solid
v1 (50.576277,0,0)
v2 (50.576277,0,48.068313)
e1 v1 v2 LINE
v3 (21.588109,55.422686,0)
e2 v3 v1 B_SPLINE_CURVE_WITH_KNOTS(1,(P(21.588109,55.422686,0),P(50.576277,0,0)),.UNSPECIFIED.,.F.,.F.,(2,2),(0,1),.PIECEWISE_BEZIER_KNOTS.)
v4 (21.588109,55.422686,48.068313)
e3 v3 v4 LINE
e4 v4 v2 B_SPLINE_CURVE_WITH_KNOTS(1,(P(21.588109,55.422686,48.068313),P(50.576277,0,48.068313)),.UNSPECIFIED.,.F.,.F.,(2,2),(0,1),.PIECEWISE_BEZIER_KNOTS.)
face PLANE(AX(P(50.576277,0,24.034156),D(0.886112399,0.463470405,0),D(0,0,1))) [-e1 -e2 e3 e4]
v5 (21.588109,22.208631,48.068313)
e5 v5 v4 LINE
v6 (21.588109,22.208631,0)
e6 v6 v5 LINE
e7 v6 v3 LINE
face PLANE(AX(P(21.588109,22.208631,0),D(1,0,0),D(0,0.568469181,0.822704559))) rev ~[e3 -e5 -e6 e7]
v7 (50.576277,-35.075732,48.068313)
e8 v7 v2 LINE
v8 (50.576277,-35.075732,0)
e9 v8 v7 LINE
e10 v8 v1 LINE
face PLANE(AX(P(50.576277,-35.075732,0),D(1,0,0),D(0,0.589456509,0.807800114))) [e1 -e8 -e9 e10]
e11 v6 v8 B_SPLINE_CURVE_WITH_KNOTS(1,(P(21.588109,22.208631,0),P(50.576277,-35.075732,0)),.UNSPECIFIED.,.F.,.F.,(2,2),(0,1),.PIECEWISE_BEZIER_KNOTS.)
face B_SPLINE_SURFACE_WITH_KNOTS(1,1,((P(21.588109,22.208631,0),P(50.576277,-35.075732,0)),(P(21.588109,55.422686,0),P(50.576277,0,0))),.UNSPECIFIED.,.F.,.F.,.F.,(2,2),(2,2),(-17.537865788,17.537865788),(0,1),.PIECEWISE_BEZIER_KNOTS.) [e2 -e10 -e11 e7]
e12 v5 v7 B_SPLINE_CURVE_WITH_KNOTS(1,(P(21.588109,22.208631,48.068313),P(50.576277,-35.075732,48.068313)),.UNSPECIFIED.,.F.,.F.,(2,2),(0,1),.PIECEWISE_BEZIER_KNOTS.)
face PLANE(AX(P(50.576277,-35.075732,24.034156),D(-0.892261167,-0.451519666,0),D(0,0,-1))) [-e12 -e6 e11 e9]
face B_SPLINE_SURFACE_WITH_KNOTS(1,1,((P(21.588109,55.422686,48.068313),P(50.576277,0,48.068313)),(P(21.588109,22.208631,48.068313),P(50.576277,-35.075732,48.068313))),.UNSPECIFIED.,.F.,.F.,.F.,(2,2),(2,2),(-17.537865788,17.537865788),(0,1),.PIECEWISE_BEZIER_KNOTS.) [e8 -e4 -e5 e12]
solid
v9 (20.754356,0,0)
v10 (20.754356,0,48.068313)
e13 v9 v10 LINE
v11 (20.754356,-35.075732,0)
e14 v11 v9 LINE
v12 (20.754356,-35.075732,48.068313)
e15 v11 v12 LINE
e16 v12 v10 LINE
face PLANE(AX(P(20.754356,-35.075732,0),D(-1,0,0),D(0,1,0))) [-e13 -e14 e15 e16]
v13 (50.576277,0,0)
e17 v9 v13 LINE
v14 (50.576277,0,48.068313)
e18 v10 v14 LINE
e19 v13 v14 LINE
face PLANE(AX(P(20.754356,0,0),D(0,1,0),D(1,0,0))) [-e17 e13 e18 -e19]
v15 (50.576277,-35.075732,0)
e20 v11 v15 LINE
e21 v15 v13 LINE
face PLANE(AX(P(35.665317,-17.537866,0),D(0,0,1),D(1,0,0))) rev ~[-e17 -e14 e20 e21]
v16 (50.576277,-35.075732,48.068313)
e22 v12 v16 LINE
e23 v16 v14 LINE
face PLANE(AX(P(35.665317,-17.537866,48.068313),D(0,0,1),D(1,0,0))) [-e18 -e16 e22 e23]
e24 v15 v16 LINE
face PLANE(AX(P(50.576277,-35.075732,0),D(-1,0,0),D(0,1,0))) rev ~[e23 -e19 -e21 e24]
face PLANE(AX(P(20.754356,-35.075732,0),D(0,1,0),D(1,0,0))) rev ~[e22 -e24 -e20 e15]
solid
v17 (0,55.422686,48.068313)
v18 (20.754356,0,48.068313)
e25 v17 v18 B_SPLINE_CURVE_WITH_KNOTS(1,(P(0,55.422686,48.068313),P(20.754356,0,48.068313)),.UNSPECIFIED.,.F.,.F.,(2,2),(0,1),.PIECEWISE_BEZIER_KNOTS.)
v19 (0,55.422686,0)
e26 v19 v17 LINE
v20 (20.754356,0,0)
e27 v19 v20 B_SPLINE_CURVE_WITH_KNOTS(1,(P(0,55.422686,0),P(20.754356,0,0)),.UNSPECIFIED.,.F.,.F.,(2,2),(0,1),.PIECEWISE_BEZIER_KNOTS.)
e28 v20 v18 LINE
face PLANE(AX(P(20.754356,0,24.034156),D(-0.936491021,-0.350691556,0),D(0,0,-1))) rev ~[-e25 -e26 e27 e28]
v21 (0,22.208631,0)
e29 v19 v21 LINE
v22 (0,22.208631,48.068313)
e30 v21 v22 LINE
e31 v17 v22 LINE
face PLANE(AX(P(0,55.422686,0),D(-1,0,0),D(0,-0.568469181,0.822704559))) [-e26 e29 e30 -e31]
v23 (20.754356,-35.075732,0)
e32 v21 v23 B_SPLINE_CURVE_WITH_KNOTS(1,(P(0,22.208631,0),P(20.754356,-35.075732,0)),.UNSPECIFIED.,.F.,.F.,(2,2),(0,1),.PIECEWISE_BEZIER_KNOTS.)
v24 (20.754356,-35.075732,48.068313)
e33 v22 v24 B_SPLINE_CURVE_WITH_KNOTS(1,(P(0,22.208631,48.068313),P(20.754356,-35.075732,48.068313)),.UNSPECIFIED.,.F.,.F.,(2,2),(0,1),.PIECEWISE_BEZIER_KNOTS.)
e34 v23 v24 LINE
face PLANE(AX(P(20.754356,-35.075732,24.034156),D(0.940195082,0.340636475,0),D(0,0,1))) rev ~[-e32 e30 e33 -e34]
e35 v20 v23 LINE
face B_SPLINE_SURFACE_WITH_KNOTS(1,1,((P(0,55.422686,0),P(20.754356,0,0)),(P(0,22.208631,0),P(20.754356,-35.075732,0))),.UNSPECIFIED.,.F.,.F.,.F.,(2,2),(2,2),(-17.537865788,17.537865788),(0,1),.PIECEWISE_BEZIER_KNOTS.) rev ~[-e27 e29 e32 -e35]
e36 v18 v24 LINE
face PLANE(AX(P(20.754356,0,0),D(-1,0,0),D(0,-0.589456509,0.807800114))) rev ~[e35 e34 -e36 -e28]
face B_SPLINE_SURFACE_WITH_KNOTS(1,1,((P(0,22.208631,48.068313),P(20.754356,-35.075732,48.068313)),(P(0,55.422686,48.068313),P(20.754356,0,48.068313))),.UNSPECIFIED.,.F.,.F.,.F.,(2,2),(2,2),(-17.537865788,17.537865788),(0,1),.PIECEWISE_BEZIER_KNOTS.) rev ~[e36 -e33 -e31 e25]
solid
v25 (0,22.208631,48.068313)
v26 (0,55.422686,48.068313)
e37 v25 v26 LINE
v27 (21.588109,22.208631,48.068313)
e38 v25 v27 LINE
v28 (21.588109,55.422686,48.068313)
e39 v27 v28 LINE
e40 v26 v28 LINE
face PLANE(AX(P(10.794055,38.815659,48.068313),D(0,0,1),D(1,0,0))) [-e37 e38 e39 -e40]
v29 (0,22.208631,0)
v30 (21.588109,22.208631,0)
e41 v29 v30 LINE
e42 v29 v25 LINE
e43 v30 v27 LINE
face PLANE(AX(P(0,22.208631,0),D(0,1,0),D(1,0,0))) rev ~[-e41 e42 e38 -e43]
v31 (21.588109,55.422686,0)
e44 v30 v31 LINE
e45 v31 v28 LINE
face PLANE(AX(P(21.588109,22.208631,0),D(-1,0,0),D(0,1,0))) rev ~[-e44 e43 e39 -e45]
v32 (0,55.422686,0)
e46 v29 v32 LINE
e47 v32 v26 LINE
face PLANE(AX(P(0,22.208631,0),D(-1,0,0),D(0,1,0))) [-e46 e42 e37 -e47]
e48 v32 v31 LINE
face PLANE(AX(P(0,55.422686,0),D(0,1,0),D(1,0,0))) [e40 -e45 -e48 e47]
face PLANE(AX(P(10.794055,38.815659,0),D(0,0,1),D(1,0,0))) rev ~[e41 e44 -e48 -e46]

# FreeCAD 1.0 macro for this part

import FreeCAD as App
import Part
import Sketcher
from FreeCAD import Vector
Q = App.Units.Quantity

doc = App.newDocument("Part")
body = doc.addObject("PartDesign::Body", "Body")

# Sketch on XY plane
sketch1 = body.newObject("Sketcher::SketchObject", "Sketch")
sketch1.AttachmentSupport = (doc.getObject("XY_Plane"), [""])
sketch1.MapMode = "FlatFace"
sketch1.addGeometry(Part.LineSegment(Vector(20.754356, 0, 0), Vector(20.754356, -35.075732, 0)), False)
sketch1.addGeometry(Part.LineSegment(Vector(20.754356, -35.075732, 0), Vector(50.576277, -35.075732, 0)), False)
sketch1.addGeometry(Part.LineSegment(Vector(50.576277, -35.075732, 0), Vector(50.576277, 0, 0)), False)
sketch1.addGeometry(Part.LineSegment(Vector(50.576277, 0, 0), Vector(20.754356, 0, 0)), False)
sketch1.addConstraint(Sketcher.Constraint("Coincident", 0, 2, 1, 1))
sketch1.addConstraint(Sketcher.Constraint("Coincident", 1, 2, 2, 1))
sketch1.addConstraint(Sketcher.Constraint("Coincident", 2, 2, 3, 1))
sketch1.addConstraint(Sketcher.Constraint("Coincident", 3, 2, 0, 1))
sketch1.addConstraint(Sketcher.Constraint("Vertical", 0))
sketch1.addConstraint(Sketcher.Constraint("Horizontal", 1))
sketch1.addConstraint(Sketcher.Constraint("Vertical", 2))
sketch1.addConstraint(Sketcher.Constraint("Horizontal", 3))
sketch1.addConstraint(Sketcher.Constraint("PointOnObject", 2, 2, -1))
sketch1.addConstraint(Sketcher.Constraint("DistanceX", 1, 1, 1, 2, Q("29.821921 mm")))
sketch1.addConstraint(Sketcher.Constraint("DistanceY", 0, 2, 0, 1, Q("35.075732 mm")))
sketch1.addConstraint(Sketcher.Constraint("DistanceX", -1, 1, 0, 2, Q("20.754356 mm")))
pad1 = body.newObject("PartDesign::Pad", "Pad")
pad1.Profile = sketch1
pad1.Length = 48.068313
body2 = doc.addObject("PartDesign::Body", "Body001")

# Sketch on XY plane
sketch2 = body2.newObject("Sketcher::SketchObject", "Sketch001")
sketch2.AttachmentSupport = (doc.getObject("XY_Plane001"), [""])
sketch2.MapMode = "FlatFace"
sketch2.addGeometry(Part.LineSegment(Vector(0, 55.422686, 0), Vector(0, 22.208631, 0)), False)
sketch2.addGeometry(Part.LineSegment(Vector(0, 22.208631, 0), Vector(21.588109, 22.208631, 0)), False)
sketch2.addGeometry(Part.LineSegment(Vector(21.588109, 22.208631, 0), Vector(21.588109, 55.422686, 0)), False)
sketch2.addGeometry(Part.LineSegment(Vector(21.588109, 55.422686, 0), Vector(0, 55.422686, 0)), False)
sketch2.addConstraint(Sketcher.Constraint("Coincident", 0, 2, 1, 1))
sketch2.addConstraint(Sketcher.Constraint("Coincident", 1, 2, 2, 1))
sketch2.addConstraint(Sketcher.Constraint("Coincident", 2, 2, 3, 1))
sketch2.addConstraint(Sketcher.Constraint("Coincident", 3, 2, 0, 1))
sketch2.addConstraint(Sketcher.Constraint("Vertical", 0))
sketch2.addConstraint(Sketcher.Constraint("Horizontal", 1))
sketch2.addConstraint(Sketcher.Constraint("Vertical", 2))
sketch2.addConstraint(Sketcher.Constraint("Horizontal", 3))
sketch2.addConstraint(Sketcher.Constraint("PointOnObject", 0, 2, -2))
sketch2.addConstraint(Sketcher.Constraint("DistanceX", 1, 1, 1, 2, Q("21.588109 mm")))
sketch2.addConstraint(Sketcher.Constraint("DistanceY", 0, 2, 0, 1, Q("33.214055 mm")))
sketch2.addConstraint(Sketcher.Constraint("DistanceY", -1, 1, 0, 2, Q("22.208631 mm")))
pad2 = body2.newObject("PartDesign::Pad", "Pad001")
pad2.Profile = sketch2
pad2.Length = 48.068313
body3 = doc.addObject("PartDesign::Body", "Body002")

# Sketch on YZ plane
sketch3 = body3.newObject("Sketcher::SketchObject", "Sketch002")
sketch3.AttachmentSupport = (doc.getObject("YZ_Plane002"), [""])
sketch3.MapMode = "FlatFace"
sketch3.AttachmentOffset = App.Placement(Vector(0, 0, 21.588109), App.Rotation())
sketch3.addGeometry(Part.LineSegment(Vector(22.208631, 48.068313, 0), Vector(22.208631, 0, 0)), False)
sketch3.addGeometry(Part.LineSegment(Vector(22.208631, 0, 0), Vector(55.422686, 0, 0)), False)
sketch3.addGeometry(Part.LineSegment(Vector(55.422686, 0, 0), Vector(55.422686, 48.068313, 0)), False)
sketch3.addGeometry(Part.LineSegment(Vector(55.422686, 48.068313, 0), Vector(22.208631, 48.068313, 0)), False)
sketch3.addConstraint(Sketcher.Constraint("Coincident", 0, 2, 1, 1))
sketch3.addConstraint(Sketcher.Constraint("Coincident", 1, 2, 2, 1))
sketch3.addConstraint(Sketcher.Constraint("Coincident", 2, 2, 3, 1))
sketch3.addConstraint(Sketcher.Constraint("Coincident", 3, 2, 0, 1))
sketch3.addConstraint(Sketcher.Constraint("Vertical", 0))
sketch3.addConstraint(Sketcher.Constraint("Horizontal", 1))
sketch3.addConstraint(Sketcher.Constraint("Vertical", 2))
sketch3.addConstraint(Sketcher.Constraint("Horizontal", 3))
sketch3.addConstraint(Sketcher.Constraint("PointOnObject", 0, 2, -1))
sketch3.addConstraint(Sketcher.Constraint("DistanceX", 1, 1, 1, 2, Q("33.214055 mm")))
sketch3.addConstraint(Sketcher.Constraint("DistanceY", 0, 2, 0, 1, Q("48.068313 mm")))
sketch3.addConstraint(Sketcher.Constraint("DistanceX", -1, 1, 0, 2, Q("22.208631 mm")))

# Sketch on YZ plane
sketch4 = body3.newObject("Sketcher::SketchObject", "Sketch003")
sketch4.AttachmentSupport = (doc.getObject("YZ_Plane002"), [""])
sketch4.MapMode = "FlatFace"
sketch4.AttachmentOffset = App.Placement(Vector(0, 0, 50.576277), App.Rotation())
sketch4.addGeometry(Part.LineSegment(Vector(-35.075732, 48.068313, 0), Vector(-35.075732, 0, 0)), False)
sketch4.addGeometry(Part.LineSegment(Vector(-35.075732, 0, 0), Vector(0, 0, 0)), False)
sketch4.addGeometry(Part.LineSegment(Vector(0, 0, 0), Vector(0, 48.068313, 0)), False)
sketch4.addGeometry(Part.LineSegment(Vector(0, 48.068313, 0), Vector(-35.075732, 48.068313, 0)), False)
sketch4.addConstraint(Sketcher.Constraint("Coincident", 0, 2, 1, 1))
sketch4.addConstraint(Sketcher.Constraint("Coincident", 1, 2, 2, 1))
sketch4.addConstraint(Sketcher.Constraint("Coincident", 2, 2, 3, 1))
sketch4.addConstraint(Sketcher.Constraint("Coincident", 3, 2, 0, 1))
sketch4.addConstraint(Sketcher.Constraint("Vertical", 0))
sketch4.addConstraint(Sketcher.Constraint("Horizontal", 1))
sketch4.addConstraint(Sketcher.Constraint("Vertical", 2))
sketch4.addConstraint(Sketcher.Constraint("Horizontal", 3))
sketch4.addConstraint(Sketcher.Constraint("Coincident", 1, 2, -1, 1))
sketch4.addConstraint(Sketcher.Constraint("DistanceX", 1, 1, 1, 2, Q("35.075732 mm")))
sketch4.addConstraint(Sketcher.Constraint("DistanceY", 0, 2, 0, 1, Q("48.068313 mm")))

additiveloft = body3.newObject("PartDesign::AdditiveLoft", "AdditiveLoft")
additiveloft.Profile = sketch3
additiveloft.Sections = [sketch4]
body4 = doc.addObject("PartDesign::Body", "Body003")

# Sketch on YZ plane
sketch5 = body4.newObject("Sketcher::SketchObject", "Sketch004")
sketch5.AttachmentSupport = (doc.getObject("YZ_Plane003"), [""])
sketch5.MapMode = "FlatFace"
sketch5.addGeometry(Part.LineSegment(Vector(55.422686, 48.068313, 0), Vector(55.422686, 0, 0)), False)
sketch5.addGeometry(Part.LineSegment(Vector(55.422686, 0, 0), Vector(22.208631, 0, 0)), False)
sketch5.addGeometry(Part.LineSegment(Vector(22.208631, 0, 0), Vector(22.208631, 48.068313, 0)), False)
sketch5.addGeometry(Part.LineSegment(Vector(22.208631, 48.068313, 0), Vector(55.422686, 48.068313, 0)), False)
sketch5.addConstraint(Sketcher.Constraint("Coincident", 0, 2, 1, 1))
sketch5.addConstraint(Sketcher.Constraint("Coincident", 1, 2, 2, 1))
sketch5.addConstraint(Sketcher.Constraint("Coincident", 2, 2, 3, 1))
sketch5.addConstraint(Sketcher.Constraint("Coincident", 3, 2, 0, 1))
sketch5.addConstraint(Sketcher.Constraint("Vertical", 0))
sketch5.addConstraint(Sketcher.Constraint("Horizontal", 1))
sketch5.addConstraint(Sketcher.Constraint("Vertical", 2))
sketch5.addConstraint(Sketcher.Constraint("Horizontal", 3))
sketch5.addConstraint(Sketcher.Constraint("PointOnObject", 0, 2, -1))
sketch5.addConstraint(Sketcher.Constraint("DistanceX", 1, 2, 1, 1, Q("33.214055 mm")))
sketch5.addConstraint(Sketcher.Constraint("DistanceY", 0, 2, 0, 1, Q("48.068313 mm")))
sketch5.addConstraint(Sketcher.Constraint("DistanceX", -1, 1, 1, 2, Q("22.208631 mm")))

# Sketch on YZ plane
sketch6 = body4.newObject("Sketcher::SketchObject", "Sketch005")
sketch6.AttachmentSupport = (doc.getObject("YZ_Plane003"), [""])
sketch6.MapMode = "FlatFace"
sketch6.AttachmentOffset = App.Placement(Vector(0, 0, 20.754356), App.Rotation())
sketch6.addGeometry(Part.LineSegment(Vector(0, 48.068313, 0), Vector(0, 0, 0)), False)
sketch6.addGeometry(Part.LineSegment(Vector(0, 0, 0), Vector(-35.075732, 0, 0)), False)
sketch6.addGeometry(Part.LineSegment(Vector(-35.075732, 0, 0), Vector(-35.075732, 48.068313, 0)), False)
sketch6.addGeometry(Part.LineSegment(Vector(-35.075732, 48.068313, 0), Vector(0, 48.068313, 0)), False)
sketch6.addConstraint(Sketcher.Constraint("Coincident", 0, 2, 1, 1))
sketch6.addConstraint(Sketcher.Constraint("Coincident", 1, 2, 2, 1))
sketch6.addConstraint(Sketcher.Constraint("Coincident", 2, 2, 3, 1))
sketch6.addConstraint(Sketcher.Constraint("Coincident", 3, 2, 0, 1))
sketch6.addConstraint(Sketcher.Constraint("Vertical", 0))
sketch6.addConstraint(Sketcher.Constraint("Horizontal", 1))
sketch6.addConstraint(Sketcher.Constraint("Vertical", 2))
sketch6.addConstraint(Sketcher.Constraint("Horizontal", 3))
sketch6.addConstraint(Sketcher.Constraint("Coincident", 0, 2, -1, 1))
sketch6.addConstraint(Sketcher.Constraint("DistanceX", 1, 2, 1, 1, Q("35.075732 mm")))
sketch6.addConstraint(Sketcher.Constraint("DistanceY", 0, 2, 0, 1, Q("48.068313 mm")))

additiveloft2 = body4.newObject("PartDesign::AdditiveLoft", "AdditiveLoft001")
additiveloft2.Profile = sketch5
additiveloft2.Sections = [sketch6]

doc.recompute()
